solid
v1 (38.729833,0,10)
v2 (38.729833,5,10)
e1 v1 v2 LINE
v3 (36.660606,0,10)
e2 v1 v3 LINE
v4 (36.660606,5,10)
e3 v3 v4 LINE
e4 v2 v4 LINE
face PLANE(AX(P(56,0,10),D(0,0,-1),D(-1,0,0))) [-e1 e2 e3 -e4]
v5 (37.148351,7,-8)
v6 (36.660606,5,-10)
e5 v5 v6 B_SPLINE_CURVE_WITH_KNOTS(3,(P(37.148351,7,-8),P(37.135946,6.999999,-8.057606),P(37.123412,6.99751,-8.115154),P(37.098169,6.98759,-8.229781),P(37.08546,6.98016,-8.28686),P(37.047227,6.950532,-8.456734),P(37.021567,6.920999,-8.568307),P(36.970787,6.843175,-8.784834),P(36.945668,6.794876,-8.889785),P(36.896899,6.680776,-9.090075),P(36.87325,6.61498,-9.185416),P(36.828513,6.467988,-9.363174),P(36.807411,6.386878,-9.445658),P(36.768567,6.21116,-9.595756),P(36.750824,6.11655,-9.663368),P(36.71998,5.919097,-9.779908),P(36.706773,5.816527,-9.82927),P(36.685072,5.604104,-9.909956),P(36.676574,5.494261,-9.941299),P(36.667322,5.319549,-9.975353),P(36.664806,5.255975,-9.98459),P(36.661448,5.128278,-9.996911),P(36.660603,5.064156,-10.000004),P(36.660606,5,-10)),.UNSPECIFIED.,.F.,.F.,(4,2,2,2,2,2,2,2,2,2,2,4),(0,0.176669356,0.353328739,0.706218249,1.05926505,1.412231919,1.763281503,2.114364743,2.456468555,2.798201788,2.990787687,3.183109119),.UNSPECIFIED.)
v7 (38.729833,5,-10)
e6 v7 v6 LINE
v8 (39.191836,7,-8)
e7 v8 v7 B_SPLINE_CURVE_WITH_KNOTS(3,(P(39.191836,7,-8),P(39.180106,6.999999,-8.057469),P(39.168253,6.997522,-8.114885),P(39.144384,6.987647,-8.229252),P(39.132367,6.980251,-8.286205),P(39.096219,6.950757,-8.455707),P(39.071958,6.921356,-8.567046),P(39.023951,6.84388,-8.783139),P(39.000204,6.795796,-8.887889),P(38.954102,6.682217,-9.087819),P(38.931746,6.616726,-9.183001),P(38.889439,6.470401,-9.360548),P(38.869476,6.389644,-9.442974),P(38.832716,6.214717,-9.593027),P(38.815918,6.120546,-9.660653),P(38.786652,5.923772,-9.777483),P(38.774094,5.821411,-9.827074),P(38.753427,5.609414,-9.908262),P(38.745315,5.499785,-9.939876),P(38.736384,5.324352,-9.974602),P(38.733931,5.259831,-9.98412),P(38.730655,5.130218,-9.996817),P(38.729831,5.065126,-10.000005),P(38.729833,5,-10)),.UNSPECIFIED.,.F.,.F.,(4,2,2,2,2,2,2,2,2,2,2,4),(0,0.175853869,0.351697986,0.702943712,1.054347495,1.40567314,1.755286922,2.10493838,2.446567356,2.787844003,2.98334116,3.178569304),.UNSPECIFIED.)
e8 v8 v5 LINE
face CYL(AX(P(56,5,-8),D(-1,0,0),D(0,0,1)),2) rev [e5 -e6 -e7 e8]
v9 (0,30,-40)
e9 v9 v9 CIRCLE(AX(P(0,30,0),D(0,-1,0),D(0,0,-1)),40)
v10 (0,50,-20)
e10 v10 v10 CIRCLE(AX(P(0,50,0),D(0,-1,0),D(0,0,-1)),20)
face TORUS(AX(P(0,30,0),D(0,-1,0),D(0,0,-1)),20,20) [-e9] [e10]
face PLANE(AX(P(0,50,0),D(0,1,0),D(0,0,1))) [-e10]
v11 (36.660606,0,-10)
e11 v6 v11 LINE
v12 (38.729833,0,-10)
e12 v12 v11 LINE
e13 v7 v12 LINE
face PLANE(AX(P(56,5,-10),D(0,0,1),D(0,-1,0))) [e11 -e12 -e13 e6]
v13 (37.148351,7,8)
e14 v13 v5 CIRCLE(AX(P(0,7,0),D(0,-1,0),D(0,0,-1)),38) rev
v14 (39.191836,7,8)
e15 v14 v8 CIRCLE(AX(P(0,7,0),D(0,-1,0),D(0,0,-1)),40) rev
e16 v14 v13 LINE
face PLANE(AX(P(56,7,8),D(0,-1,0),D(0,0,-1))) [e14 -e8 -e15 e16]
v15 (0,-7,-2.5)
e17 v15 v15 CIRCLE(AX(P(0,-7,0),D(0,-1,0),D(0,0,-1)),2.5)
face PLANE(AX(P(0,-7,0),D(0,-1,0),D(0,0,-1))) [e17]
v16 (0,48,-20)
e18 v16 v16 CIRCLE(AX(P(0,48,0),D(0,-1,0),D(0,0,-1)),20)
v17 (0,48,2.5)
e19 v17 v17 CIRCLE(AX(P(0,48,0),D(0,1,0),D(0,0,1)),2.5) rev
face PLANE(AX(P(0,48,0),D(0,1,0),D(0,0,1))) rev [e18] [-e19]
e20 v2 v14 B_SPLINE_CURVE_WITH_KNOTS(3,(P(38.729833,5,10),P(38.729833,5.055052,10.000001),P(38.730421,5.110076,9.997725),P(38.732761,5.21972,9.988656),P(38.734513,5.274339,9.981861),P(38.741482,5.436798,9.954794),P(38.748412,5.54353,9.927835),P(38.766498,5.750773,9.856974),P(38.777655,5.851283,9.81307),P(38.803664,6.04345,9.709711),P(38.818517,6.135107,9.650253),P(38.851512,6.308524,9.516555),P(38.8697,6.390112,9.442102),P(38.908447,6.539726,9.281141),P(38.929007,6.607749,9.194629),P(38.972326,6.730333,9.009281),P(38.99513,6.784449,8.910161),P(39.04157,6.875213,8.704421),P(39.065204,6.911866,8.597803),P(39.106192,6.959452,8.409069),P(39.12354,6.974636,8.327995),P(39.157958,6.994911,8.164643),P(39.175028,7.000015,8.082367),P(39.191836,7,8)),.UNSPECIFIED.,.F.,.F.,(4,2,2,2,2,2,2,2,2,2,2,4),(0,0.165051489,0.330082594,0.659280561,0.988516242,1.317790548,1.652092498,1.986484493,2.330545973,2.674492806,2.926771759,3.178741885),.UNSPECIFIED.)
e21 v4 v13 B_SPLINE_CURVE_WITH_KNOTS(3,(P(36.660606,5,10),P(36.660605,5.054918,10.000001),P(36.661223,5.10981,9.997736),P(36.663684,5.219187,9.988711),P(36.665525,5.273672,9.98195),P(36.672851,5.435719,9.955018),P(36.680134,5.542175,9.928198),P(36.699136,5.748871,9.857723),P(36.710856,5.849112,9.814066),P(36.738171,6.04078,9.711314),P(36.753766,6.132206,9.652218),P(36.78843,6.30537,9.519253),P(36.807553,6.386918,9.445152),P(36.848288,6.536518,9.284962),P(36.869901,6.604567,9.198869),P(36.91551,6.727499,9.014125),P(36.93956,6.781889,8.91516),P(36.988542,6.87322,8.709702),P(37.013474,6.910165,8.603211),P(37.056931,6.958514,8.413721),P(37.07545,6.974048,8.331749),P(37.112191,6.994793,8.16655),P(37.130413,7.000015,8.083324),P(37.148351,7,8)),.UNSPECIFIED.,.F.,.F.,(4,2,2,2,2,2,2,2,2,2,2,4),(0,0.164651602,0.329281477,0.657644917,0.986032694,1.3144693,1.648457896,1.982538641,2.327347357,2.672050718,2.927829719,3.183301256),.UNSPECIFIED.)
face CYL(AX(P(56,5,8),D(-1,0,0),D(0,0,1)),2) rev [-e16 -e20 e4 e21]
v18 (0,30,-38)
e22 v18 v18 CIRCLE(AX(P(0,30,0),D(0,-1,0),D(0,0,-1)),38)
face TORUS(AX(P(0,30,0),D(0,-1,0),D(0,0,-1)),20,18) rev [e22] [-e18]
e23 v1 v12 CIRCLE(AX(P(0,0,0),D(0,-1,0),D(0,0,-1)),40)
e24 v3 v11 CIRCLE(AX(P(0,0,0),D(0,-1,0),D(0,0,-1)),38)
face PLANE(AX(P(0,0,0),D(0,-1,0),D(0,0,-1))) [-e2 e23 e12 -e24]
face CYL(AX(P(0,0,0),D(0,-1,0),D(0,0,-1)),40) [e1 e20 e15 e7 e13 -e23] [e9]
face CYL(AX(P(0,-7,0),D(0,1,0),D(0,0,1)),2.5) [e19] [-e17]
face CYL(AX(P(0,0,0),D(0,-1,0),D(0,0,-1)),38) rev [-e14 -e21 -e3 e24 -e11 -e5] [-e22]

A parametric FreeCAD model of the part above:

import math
import FreeCAD as App
import Part
import Sketcher
from FreeCAD import Vector
Q = App.Units.Quantity


def faces_at(feature, points):
    """Names of the faces that lie closest to the given points."""
    faces = feature.Shape.Faces
    near = lambda p: min(range(len(faces)), key=lambda i: faces[i].distToShape(Part.Vertex(*p))[0])
    return sorted({f"Face{near(p) + 1}" for p in points})

doc = App.newDocument("Part")
params = doc.addObject("Spreadsheet::Sheet", "Params")
for row, (alias, value) in enumerate([
    ("sketch1_radius", "20 mm"),
    ("sketch1_width", "50 mm"),
    ("sketch1_height", "40 mm"),
    ("revolution_angle", "360 deg"),
    ("thickness_wall", "2 mm"),
    ("sketch2_diameter", "5 mm"),
    ("pad1_length", "55 mm"),
    ("sketch3_radius", "2 mm"),
    ("sketch3_width", "5 mm"),
    ("sketch3_height", "20 mm"),
    ("pocket1_length", "50 mm"),
], start=1):
    params.set(f"A{row}", alias)
    params.set(f"B{row}", "=" + value)
    params.setAlias(f"B{row}", alias)

body = doc.addObject("PartDesign::Body", "Body")

# Sketch on YZ plane
sketch1 = body.newObject("Sketcher::SketchObject", "Sketch")
sketch1.AttachmentSupport = (doc.getObject("YZ_Plane"), [""])
sketch1.MapMode = "FlatFace"
sketch1.addGeometry([
    Part.LineSegment(Vector(50, 0, 0), Vector(0, 0, 0)),  # 0
    Part.LineSegment(Vector(0, 0, 0), Vector(0, -40, 0)),  # 1
    Part.LineSegment(Vector(0, -40, 0), Vector(30, -40, 0)),  # 2
    Part.ArcOfCircle(Part.Circle(Vector(30, -20, 0), Vector(0, 0, 1), 20), math.radians(-90), math.radians(0)),  # 3
    Part.LineSegment(Vector(50, -20, 0), Vector(50, 0, 0)),  # 4
], False)
sketch1.addConstraint([
    Sketcher.Constraint("Coincident", 0, 2, 1, 1),
    Sketcher.Constraint("Coincident", 1, 2, 2, 1),
    Sketcher.Constraint("Tangent", 2, 2, 3, 1),
    Sketcher.Constraint("Tangent", 3, 2, 4, 1),
    Sketcher.Constraint("Coincident", 4, 2, 0, 1),
    Sketcher.Constraint("Horizontal", 0),
    Sketcher.Constraint("Vertical", 1),
    Sketcher.Constraint("Horizontal", 2),
    Sketcher.Constraint("Vertical", 4),
    Sketcher.Constraint("Coincident", 0, 2, -1, 1),
    Sketcher.Constraint("Radius", 3, Q("20 mm")),
    Sketcher.Constraint("DistanceX", 0, 2, 0, 1, Q("50 mm")),
    Sketcher.Constraint("DistanceY", 1, 2, 1, 1, Q("40 mm")),
])
sketch1.setExpression("Constraints[10]", "Params.sketch1_radius")
sketch1.setExpression("Constraints[11]", "Params.sketch1_width")
sketch1.setExpression("Constraints[12]", "Params.sketch1_height")
revolution = body.newObject("PartDesign::Revolution", "Revolution")
revolution.Profile = sketch1
revolution.ReferenceAxis = (sketch1, ["H_Axis"])
revolution.setExpression("Angle", "Params.revolution_angle")
doc.recompute()

thickness = body.newObject("PartDesign::Thickness", "Thickness")
thickness.Base = (revolution, faces_at(revolution, [(0, 0, 0)]))
thickness.setExpression("Value", "Params.thickness_wall")
thickness.Reversed = True
thickness.Join = "Intersection"

# Sketch on XZ plane
sketch2 = body.newObject("Sketcher::SketchObject", "Sketch001")
sketch2.AttachmentSupport = (doc.getObject("XZ_Plane"), [""])
sketch2.MapMode = "FlatFace"
sketch2.AttachmentOffset = App.Placement(Vector(0, 0, -48), App.Rotation())
sketch2.addGeometry(Part.Circle(Vector(0, 0, 0), Vector(0, 0, 1), 2.5), False)
sketch2.addConstraint([
    Sketcher.Constraint("Coincident", 0, 3, -1, 1),
    Sketcher.Constraint("Diameter", 0, Q("5 mm")),
])
sketch2.setExpression("Constraints[1]", "Params.sketch2_diameter")
pad1 = body.newObject("PartDesign::Pad", "Pad")
pad1.Profile = sketch2
pad1.setExpression("Length", "Params.pad1_length")

# Sketch on YZ plane
sketch3 = body.newObject("Sketcher::SketchObject", "Sketch002")
sketch3.AttachmentSupport = (doc.getObject("YZ_Plane"), [""])
sketch3.MapMode = "FlatFace"
sketch3.AttachmentOffset = App.Placement(Vector(0, 0, 6), App.Rotation())
sketch3.addGeometry([
    Part.LineSegment(Vector(0, 10, 0), Vector(0, -10, 0)),  # 0
    Part.LineSegment(Vector(0, -10, 0), Vector(5, -10, 0)),  # 1
    Part.ArcOfCircle(Part.Circle(Vector(5, -8, 0), Vector(0, 0, 1), 2), math.radians(-90), math.radians(0)),  # 2
    Part.LineSegment(Vector(7, -8, 0), Vector(7, 8, 0)),  # 3
    Part.ArcOfCircle(Part.Circle(Vector(5, 8, 0), Vector(0, 0, 1), 2), math.radians(0), math.radians(90)),  # 4
    Part.LineSegment(Vector(5, 10, 0), Vector(0, 10, 0)),  # 5
], False)
sketch3.addConstraint([
    Sketcher.Constraint("Coincident", 0, 2, 1, 1),
    Sketcher.Constraint("Tangent", 1, 2, 2, 1),
    Sketcher.Constraint("Tangent", 2, 2, 3, 1),
    Sketcher.Constraint("Tangent", 3, 2, 4, 1),
    Sketcher.Constraint("Tangent", 4, 2, 5, 1),
    Sketcher.Constraint("Coincident", 5, 2, 0, 1),
    Sketcher.Constraint("Vertical", 0),
    Sketcher.Constraint("Horizontal", 1),
    Sketcher.Constraint("Vertical", 3),
    Sketcher.Constraint("Horizontal", 5),
    Sketcher.Constraint("Equal", 2, 4),
    Sketcher.Constraint("Symmetric", 0, 2, 5, 2, -1, 1),
    Sketcher.Constraint("Radius", 2, Q("2 mm")),
    Sketcher.Constraint("DistanceX", 1, 1, 1, 2, Q("5 mm")),
    Sketcher.Constraint("DistanceY", 0, 2, 0, 1, Q("20 mm")),
])
sketch3.setExpression("Constraints[12]", "Params.sketch3_radius")
sketch3.setExpression("Constraints[13]", "Params.sketch3_width")
sketch3.setExpression("Constraints[14]", "Params.sketch3_height")
pocket1 = body.newObject("PartDesign::Pocket", "Pocket")
pocket1.Profile = sketch3
pocket1.setExpression("Length", "Params.pocket1_length")
pocket1.Reversed = True

doc.recompute()
